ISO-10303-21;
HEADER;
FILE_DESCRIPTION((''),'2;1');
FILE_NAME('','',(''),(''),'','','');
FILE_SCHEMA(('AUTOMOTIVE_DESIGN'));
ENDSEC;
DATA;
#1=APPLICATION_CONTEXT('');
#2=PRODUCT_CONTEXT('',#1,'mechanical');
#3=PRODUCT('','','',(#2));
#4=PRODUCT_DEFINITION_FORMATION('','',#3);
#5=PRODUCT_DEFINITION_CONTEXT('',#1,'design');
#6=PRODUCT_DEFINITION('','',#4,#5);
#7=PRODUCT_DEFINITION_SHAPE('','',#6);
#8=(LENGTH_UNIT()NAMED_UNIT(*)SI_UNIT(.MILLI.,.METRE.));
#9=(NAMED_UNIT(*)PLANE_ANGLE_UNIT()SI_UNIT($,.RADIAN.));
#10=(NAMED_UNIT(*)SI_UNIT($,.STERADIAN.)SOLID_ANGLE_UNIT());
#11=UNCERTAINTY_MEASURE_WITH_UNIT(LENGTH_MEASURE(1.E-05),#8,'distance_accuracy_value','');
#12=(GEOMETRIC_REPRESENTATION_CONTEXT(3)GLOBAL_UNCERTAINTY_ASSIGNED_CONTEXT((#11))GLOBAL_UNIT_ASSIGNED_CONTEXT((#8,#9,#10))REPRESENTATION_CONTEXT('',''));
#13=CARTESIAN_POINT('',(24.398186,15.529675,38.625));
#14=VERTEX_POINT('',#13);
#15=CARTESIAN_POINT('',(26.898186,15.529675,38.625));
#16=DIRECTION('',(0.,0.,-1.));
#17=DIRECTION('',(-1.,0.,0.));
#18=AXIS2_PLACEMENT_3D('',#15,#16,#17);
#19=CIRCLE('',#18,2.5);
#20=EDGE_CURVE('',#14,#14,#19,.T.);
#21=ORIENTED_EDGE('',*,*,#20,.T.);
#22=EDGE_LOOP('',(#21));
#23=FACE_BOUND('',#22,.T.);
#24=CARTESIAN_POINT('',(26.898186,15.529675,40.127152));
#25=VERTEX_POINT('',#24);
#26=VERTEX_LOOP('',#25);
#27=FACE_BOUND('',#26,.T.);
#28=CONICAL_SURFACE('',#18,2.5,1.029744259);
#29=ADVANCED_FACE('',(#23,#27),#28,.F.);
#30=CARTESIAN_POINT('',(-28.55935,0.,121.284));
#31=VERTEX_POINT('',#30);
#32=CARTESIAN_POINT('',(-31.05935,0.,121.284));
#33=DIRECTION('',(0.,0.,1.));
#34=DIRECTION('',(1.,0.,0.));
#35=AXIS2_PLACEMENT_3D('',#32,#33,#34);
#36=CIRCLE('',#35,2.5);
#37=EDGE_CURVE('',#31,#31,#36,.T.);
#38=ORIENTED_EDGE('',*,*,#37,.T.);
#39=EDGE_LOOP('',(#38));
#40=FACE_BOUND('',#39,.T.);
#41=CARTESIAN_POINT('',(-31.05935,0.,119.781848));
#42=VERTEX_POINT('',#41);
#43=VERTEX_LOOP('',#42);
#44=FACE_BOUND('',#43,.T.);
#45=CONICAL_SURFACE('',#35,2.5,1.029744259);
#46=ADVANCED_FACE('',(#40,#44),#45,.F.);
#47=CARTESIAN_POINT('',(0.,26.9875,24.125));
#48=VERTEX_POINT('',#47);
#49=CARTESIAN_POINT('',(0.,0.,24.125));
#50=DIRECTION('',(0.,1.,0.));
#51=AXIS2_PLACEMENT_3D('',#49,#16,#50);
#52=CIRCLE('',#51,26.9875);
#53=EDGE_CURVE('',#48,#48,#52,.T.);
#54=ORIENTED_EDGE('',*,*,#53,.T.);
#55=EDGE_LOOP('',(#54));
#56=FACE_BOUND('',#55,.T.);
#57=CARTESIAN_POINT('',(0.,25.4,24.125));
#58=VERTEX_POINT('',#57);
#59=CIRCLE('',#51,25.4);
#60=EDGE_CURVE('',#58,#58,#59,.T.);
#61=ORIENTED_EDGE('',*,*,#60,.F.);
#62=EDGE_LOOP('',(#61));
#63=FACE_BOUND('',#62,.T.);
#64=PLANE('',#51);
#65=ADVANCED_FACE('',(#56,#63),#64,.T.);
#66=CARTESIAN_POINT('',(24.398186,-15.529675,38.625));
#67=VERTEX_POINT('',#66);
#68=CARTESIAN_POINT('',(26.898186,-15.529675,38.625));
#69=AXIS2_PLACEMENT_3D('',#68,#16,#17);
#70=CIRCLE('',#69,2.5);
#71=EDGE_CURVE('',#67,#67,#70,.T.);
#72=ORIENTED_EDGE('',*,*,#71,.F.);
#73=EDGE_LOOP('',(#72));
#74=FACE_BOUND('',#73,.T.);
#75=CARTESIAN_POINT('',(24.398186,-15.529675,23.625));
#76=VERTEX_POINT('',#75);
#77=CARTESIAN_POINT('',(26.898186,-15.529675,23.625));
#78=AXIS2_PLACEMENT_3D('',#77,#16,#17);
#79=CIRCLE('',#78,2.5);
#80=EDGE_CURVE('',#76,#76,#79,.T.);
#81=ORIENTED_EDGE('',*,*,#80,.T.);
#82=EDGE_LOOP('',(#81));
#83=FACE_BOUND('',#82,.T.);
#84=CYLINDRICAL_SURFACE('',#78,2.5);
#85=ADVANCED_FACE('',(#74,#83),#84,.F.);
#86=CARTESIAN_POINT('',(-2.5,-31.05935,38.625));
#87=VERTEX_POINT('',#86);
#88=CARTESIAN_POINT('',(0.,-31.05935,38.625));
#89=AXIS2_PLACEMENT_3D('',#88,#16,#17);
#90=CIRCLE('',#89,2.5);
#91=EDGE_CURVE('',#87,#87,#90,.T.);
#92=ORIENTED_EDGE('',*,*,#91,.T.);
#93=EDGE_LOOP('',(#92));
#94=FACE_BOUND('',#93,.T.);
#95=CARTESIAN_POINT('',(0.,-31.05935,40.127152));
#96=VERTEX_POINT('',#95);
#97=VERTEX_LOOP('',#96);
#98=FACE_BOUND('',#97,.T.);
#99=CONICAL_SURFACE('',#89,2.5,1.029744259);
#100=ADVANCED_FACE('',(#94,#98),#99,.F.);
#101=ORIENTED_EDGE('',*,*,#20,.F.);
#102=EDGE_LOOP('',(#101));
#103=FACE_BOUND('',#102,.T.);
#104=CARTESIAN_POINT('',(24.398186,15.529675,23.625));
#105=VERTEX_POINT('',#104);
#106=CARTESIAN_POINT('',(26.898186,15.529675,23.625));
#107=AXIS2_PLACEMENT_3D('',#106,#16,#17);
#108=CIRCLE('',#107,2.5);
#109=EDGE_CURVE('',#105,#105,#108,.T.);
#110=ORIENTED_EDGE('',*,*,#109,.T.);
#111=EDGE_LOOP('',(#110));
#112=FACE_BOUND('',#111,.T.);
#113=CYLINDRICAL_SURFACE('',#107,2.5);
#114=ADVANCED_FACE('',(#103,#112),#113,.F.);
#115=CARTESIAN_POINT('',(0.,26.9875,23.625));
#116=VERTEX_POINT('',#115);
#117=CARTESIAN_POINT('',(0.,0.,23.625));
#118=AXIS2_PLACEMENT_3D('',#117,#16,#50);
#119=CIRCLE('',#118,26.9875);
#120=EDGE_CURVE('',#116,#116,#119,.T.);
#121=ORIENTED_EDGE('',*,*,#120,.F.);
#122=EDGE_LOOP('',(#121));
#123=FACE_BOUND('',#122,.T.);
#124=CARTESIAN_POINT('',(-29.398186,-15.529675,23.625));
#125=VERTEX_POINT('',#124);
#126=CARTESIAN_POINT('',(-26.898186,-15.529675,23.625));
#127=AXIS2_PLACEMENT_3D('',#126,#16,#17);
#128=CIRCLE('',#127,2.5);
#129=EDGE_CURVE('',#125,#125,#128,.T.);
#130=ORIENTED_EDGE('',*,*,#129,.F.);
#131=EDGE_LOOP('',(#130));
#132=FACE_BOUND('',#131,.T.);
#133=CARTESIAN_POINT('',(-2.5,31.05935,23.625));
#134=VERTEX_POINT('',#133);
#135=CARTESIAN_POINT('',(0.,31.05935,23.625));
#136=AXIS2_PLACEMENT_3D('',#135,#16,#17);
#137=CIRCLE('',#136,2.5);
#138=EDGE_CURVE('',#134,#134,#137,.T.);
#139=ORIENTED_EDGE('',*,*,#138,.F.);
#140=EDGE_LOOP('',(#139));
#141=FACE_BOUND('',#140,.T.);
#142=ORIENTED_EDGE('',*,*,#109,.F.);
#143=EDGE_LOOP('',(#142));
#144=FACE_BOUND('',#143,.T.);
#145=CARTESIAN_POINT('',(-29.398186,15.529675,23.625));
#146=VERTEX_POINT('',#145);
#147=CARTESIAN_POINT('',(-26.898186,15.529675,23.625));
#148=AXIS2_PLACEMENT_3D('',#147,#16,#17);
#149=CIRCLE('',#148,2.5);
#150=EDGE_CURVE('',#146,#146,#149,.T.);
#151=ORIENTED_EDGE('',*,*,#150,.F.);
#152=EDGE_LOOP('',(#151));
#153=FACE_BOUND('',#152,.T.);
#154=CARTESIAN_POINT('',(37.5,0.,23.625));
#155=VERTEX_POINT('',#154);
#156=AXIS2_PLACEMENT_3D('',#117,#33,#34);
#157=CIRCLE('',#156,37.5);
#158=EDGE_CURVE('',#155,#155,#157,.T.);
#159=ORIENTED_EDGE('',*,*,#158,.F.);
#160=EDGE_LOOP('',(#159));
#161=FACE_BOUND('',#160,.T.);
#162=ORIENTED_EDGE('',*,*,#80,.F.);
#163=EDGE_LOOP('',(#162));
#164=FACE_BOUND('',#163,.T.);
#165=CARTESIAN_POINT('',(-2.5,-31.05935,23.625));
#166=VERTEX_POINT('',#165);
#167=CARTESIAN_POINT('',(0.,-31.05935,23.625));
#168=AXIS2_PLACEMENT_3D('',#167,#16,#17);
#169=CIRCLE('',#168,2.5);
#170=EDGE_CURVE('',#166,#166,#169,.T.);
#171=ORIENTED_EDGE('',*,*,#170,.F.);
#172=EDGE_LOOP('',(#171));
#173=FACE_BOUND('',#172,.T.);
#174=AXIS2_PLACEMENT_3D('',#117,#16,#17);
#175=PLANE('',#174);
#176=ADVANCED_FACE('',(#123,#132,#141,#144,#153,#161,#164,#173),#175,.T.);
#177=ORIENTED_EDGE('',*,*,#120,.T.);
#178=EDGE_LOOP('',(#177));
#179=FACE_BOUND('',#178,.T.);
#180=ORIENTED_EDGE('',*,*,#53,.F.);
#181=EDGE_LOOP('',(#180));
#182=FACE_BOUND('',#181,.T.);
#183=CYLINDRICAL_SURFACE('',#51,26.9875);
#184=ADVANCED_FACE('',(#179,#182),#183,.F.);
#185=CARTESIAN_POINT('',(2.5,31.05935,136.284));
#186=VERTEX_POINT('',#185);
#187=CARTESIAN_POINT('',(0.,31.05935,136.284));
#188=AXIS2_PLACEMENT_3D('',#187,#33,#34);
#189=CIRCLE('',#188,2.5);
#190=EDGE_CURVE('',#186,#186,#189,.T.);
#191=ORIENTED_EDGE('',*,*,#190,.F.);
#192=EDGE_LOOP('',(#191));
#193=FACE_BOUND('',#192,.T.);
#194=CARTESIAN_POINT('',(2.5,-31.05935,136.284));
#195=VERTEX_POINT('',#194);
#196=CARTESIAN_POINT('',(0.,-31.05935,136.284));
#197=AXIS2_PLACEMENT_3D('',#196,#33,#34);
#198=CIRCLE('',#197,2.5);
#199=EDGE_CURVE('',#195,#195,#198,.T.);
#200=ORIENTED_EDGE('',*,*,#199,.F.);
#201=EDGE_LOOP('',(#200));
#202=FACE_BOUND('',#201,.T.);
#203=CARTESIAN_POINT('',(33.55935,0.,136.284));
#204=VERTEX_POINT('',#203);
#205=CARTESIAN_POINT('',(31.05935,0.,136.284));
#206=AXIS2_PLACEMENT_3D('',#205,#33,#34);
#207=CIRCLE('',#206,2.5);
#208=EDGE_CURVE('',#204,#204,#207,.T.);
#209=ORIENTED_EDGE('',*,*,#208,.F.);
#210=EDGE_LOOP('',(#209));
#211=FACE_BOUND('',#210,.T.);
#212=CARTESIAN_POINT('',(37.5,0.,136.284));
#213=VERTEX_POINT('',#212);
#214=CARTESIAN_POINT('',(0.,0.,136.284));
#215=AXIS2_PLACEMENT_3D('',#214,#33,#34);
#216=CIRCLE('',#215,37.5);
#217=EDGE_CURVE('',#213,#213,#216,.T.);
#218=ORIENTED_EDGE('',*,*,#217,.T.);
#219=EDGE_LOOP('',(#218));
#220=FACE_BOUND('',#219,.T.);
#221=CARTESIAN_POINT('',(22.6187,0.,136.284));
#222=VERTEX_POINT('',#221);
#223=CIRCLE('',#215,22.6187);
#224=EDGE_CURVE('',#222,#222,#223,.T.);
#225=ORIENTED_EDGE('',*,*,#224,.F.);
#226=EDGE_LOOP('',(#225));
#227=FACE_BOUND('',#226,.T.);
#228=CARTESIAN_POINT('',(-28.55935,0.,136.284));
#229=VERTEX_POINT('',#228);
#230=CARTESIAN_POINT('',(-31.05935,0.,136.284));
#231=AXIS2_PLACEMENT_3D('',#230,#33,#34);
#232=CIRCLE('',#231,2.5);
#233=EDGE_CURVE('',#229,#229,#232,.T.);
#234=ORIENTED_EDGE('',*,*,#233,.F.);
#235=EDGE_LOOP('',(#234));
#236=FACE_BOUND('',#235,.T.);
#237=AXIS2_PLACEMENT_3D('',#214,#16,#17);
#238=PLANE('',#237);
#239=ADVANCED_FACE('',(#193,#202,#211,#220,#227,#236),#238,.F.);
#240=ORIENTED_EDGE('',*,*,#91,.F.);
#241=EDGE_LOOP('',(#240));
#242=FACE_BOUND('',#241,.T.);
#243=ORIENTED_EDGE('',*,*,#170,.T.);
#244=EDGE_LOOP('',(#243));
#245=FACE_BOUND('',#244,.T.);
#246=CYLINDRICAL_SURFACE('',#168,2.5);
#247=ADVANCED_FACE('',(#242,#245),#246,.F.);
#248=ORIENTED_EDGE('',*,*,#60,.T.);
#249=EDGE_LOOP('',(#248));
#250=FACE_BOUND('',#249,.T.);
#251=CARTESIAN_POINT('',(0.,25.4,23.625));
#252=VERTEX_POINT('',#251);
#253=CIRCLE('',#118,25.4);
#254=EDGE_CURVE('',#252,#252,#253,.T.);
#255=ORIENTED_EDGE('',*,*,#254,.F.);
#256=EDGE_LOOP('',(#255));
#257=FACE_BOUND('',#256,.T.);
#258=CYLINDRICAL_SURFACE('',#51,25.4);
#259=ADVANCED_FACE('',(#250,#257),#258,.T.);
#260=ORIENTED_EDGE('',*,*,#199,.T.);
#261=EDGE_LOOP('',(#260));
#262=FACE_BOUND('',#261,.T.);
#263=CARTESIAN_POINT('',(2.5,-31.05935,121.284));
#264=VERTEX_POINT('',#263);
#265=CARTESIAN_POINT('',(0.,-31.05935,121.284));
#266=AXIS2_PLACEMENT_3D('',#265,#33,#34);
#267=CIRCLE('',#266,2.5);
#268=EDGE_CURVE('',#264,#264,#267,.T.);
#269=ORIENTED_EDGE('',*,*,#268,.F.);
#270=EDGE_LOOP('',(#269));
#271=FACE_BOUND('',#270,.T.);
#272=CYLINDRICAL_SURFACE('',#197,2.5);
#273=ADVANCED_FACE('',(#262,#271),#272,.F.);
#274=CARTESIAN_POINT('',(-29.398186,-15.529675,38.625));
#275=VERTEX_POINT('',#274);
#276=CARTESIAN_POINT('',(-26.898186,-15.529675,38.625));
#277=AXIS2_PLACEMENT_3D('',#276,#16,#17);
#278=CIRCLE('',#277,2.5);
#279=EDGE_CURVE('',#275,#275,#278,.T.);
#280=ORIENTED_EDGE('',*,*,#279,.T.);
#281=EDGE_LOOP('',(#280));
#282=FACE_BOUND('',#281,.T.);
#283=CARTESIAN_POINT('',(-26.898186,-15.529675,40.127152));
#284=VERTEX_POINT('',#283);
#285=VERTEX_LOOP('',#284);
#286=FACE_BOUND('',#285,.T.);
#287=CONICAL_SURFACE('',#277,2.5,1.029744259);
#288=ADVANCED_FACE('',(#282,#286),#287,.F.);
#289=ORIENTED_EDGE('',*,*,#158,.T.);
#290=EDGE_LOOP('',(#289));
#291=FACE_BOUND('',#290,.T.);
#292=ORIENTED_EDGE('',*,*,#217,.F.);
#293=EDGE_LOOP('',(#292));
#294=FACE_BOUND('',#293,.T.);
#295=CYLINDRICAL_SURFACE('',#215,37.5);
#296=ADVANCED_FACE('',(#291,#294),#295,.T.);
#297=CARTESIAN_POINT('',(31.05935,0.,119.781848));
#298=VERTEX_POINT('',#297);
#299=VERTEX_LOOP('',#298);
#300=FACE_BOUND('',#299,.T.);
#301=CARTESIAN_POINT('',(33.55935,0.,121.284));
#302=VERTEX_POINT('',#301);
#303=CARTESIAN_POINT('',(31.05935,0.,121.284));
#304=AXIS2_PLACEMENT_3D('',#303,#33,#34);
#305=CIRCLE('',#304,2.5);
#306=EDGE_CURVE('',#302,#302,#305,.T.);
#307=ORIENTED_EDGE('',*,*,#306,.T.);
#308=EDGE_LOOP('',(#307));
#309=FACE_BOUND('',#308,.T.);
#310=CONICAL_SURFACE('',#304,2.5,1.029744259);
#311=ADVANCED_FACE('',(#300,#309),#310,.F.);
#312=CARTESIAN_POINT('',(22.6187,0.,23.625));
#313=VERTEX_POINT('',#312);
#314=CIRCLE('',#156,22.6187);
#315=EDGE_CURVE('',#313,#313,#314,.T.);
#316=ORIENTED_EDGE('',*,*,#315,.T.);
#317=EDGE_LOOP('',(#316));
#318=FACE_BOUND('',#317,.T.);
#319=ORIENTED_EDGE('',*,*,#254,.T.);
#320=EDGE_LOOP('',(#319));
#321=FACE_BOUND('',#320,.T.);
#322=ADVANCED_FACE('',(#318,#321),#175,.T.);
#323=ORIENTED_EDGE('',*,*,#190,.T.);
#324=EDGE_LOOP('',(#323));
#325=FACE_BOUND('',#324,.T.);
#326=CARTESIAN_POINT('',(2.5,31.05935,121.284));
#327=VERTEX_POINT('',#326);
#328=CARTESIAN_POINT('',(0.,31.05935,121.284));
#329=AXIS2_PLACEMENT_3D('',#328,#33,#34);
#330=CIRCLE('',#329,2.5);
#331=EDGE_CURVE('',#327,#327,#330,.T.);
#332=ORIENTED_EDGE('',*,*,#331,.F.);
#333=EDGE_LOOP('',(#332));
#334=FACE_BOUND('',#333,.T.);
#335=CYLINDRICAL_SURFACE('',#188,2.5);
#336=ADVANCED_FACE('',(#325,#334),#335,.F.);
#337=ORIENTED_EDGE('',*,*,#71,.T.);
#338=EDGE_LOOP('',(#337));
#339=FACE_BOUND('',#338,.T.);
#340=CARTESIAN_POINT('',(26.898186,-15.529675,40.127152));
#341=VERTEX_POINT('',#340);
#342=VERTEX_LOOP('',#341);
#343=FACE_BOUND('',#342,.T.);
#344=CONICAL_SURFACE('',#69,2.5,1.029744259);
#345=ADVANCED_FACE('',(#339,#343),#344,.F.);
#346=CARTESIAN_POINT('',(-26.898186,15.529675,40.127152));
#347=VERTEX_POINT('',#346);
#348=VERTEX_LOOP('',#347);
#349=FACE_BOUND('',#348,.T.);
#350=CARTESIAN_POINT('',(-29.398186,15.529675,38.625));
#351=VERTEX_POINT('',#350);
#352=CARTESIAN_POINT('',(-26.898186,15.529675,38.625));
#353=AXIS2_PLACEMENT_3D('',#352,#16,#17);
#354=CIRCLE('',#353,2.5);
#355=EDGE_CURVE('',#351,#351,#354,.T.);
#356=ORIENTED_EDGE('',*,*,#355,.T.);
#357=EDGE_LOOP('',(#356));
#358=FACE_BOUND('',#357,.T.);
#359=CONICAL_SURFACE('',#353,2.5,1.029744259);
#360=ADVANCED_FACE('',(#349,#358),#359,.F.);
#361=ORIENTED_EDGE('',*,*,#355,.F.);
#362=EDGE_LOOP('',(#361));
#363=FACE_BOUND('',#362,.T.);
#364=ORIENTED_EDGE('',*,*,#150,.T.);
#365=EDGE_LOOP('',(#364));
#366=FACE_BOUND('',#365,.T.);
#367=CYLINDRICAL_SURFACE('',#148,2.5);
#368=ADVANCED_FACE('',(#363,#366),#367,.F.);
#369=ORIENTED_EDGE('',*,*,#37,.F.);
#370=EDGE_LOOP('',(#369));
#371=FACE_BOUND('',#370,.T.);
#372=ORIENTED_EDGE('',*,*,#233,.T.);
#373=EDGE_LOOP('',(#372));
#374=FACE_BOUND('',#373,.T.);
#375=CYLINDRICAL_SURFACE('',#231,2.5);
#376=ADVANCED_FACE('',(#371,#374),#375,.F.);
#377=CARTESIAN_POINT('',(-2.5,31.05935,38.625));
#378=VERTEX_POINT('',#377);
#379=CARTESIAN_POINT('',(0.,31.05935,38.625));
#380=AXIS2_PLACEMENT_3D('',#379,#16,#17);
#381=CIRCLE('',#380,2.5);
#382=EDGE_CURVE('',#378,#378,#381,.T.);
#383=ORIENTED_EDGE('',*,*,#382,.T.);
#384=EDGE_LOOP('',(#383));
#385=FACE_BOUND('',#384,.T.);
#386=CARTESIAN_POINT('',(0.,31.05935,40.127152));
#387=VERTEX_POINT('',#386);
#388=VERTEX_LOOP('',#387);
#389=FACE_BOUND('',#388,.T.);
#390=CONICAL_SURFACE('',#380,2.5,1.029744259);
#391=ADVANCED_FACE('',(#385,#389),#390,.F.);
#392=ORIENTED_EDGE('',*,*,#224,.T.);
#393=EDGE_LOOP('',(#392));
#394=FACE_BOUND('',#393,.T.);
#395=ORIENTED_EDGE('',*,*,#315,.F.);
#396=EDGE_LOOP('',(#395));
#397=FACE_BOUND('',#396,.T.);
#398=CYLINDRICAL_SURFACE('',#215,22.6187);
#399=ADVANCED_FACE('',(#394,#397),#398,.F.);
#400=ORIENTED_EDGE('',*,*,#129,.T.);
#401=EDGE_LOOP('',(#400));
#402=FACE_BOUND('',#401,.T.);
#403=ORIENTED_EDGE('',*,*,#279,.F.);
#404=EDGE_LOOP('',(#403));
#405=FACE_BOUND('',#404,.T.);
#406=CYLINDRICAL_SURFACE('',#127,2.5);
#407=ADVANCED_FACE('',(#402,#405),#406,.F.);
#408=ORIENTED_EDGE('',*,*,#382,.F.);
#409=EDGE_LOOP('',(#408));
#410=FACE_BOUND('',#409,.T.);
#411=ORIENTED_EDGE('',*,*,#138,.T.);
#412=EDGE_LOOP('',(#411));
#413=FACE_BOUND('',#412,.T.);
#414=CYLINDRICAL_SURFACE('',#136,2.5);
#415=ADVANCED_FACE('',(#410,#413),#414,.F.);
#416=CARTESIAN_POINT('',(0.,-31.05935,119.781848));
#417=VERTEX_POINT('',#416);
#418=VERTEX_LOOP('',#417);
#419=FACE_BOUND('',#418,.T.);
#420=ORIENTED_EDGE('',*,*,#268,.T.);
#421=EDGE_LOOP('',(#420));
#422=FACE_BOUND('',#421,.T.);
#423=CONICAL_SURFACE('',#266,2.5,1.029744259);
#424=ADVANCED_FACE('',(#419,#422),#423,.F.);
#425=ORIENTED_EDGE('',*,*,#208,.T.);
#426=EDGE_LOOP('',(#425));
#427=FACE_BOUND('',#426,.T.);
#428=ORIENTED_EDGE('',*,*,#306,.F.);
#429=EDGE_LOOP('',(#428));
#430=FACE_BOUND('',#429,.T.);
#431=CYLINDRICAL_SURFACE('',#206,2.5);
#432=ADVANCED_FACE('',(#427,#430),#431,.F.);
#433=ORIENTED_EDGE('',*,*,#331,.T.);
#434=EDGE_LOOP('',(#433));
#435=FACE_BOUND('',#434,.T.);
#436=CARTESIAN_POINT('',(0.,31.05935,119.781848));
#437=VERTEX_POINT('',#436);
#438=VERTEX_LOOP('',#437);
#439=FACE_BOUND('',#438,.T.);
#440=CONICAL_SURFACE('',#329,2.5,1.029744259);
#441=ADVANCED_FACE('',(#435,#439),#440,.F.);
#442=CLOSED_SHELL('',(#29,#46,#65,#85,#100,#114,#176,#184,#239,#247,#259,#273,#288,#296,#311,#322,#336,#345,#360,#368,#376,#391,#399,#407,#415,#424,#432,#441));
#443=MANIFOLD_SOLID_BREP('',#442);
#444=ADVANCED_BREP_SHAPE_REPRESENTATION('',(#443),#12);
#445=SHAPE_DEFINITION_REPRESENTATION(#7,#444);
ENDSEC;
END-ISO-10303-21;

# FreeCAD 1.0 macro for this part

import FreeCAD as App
import Part
import Sketcher

V = App.Vector
Q = App.Units.Quantity

doc = App.newDocument("Part")
body = doc.addObject("PartDesign::Body", "Body")

# Sketch on YZ plane
sketch1 = body.newObject("Sketcher::SketchObject", "Sketch")
sketch1.AttachmentSupport = (doc.getObject("YZ_Plane"), [""])
sketch1.MapMode = "FlatFace"
sketch1.addGeometry(Part.LineSegment(V(38, 136, 0), V(23, 136, 0)), False)
sketch1.addGeometry(Part.LineSegment(V(23, 136, 0), V(23, 24, 0)), False)
sketch1.addGeometry(Part.LineSegment(V(23, 24, 0), V(38, 24, 0)), False)
sketch1.addGeometry(Part.LineSegment(V(38, 24, 0), V(38, 136, 0)), False)
sketch1.addConstraint(Sketcher.Constraint("Coincident", 0, 2, 1, 1))
sketch1.addConstraint(Sketcher.Constraint("Coincident", 1, 2, 2, 1))
sketch1.addConstraint(Sketcher.Constraint("Coincident", 2, 2, 3, 1))
sketch1.addConstraint(Sketcher.Constraint("Coincident", 3, 2, 0, 1))
sketch1.addConstraint(Sketcher.Constraint("Horizontal", 0))
sketch1.addConstraint(Sketcher.Constraint("Vertical", 1))
sketch1.addConstraint(Sketcher.Constraint("Horizontal", 2))
sketch1.addConstraint(Sketcher.Constraint("Vertical", 3))
sketch1.addConstraint(Sketcher.Constraint("DistanceX", -1, 1, 2, 2, 37.5))
sketch1.addConstraint(Sketcher.Constraint("DistanceY", 1, 2, 1, 1, 112.659))
sketch1.addConstraint(Sketcher.Constraint("DistanceX", 0, 2, 0, 1, 14.8813))
sketch1.addConstraint(Sketcher.Constraint("DistanceY", -1, 1, 0, 2, 136.284))
revolution = body.newObject("PartDesign::Revolution", "Revolution")
revolution.Profile = sketch1
revolution.ReferenceAxis = (sketch1, ["V_Axis"])
revolution.Angle = 360

# Sketch on YZ plane
sketch2 = body.newObject("Sketcher::SketchObject", "Sketch001")
sketch2.AttachmentSupport = (doc.getObject("YZ_Plane"), [""])
sketch2.MapMode = "FlatFace"
sketch2.addGeometry(Part.LineSegment(V(31.1, 40.1, 0), V(31.1, 23.6, 0)), False)
sketch2.addGeometry(Part.LineSegment(V(31.1, 23.6, 0), V(33.6, 23.6, 0)), False)
sketch2.addGeometry(Part.LineSegment(V(33.6, 23.6, 0), V(33.6, 38.6, 0)), False)
sketch2.addGeometry(Part.LineSegment(V(33.6, 38.6, 0), V(31.1, 40.1, 0)), False)
sketch2.addGeometry(Part.LineSegment(V(31.1, 23.6, 0), V(31.1, 40.1, 0)), True)  # axis
sketch2.addConstraint(Sketcher.Constraint("Coincident", 0, 2, 1, 1))
sketch2.addConstraint(Sketcher.Constraint("Coincident", 1, 2, 2, 1))
sketch2.addConstraint(Sketcher.Constraint("Coincident", 2, 2, 3, 1))
sketch2.addConstraint(Sketcher.Constraint("Coincident", 3, 2, 0, 1))
sketch2.addConstraint(Sketcher.Constraint("Vertical", 0))
sketch2.addConstraint(Sketcher.Constraint("Horizontal", 1))
sketch2.addConstraint(Sketcher.Constraint("Vertical", 2))
sketch2.addConstraint(Sketcher.Constraint("Vertical", 4))
sketch2.addConstraint(Sketcher.Constraint("Coincident", 4, 1, 0, 2))
sketch2.addConstraint(Sketcher.Constraint("Equal", 0, 4))
sketch2.addConstraint(Sketcher.Constraint("DistanceY", 2, 1, 2, 2, 15.0))
sketch2.addConstraint(Sketcher.Constraint("Angle", 3, Q("149 deg")))
sketch2.addConstraint(Sketcher.Constraint("DistanceX", 1, 1, 1, 2, 2.5))
sketch2.addConstraint(Sketcher.Constraint("DistanceY", -1, 1, 0, 2, 23.625))
sketch2.addConstraint(Sketcher.Constraint("DistanceX", -1, 1, 0, 2, 31.05935))
groove = body.newObject("PartDesign::Groove", "Groove")
groove.Profile = sketch2
groove.ReferenceAxis = (sketch2, ["Axis0"])
groove.Angle = 360
doc.recompute()

polarpattern = body.newObject("PartDesign::PolarPattern", "PolarPattern")
polarpattern.Originals = [groove]
polarpattern.Axis = (doc.getObject("Z_Axis"), [""])
polarpattern.Angle = 360
polarpattern.Occurrences = 6
body.Tip = polarpattern

# Sketch on YZ plane
sketch3 = body.newObject("Sketcher::SketchObject", "Sketch002")
sketch3.AttachmentSupport = (doc.getObject("YZ_Plane"), [""])
sketch3.MapMode = "FlatFace"
sketch3.addGeometry(Part.LineSegment(V(31.1, 119.8, 0), V(31.1, 136.3, 0)), False)
sketch3.addGeometry(Part.LineSegment(V(31.1, 136.3, 0), V(28.6, 136.3, 0)), False)
sketch3.addGeometry(Part.LineSegment(V(28.6, 136.3, 0), V(28.6, 121.3, 0)), False)
sketch3.addGeometry(Part.LineSegment(V(28.6, 121.3, 0), V(31.1, 119.8, 0)), False)
sketch3.addGeometry(Part.LineSegment(V(31.1, 136.3, 0), V(31.1, 119.8, 0)), True)  # axis
sketch3.addConstraint(Sketcher.Constraint("Coincident", 0, 2, 1, 1))
sketch3.addConstraint(Sketcher.Constraint("Coincident", 1, 2, 2, 1))
sketch3.addConstraint(Sketcher.Constraint("Coincident", 2, 2, 3, 1))
sketch3.addConstraint(Sketcher.Constraint("Coincident", 3, 2, 0, 1))
sketch3.addConstraint(Sketcher.Constraint("Vertical", 0))
sketch3.addConstraint(Sketcher.Constraint("Horizontal", 1))
sketch3.addConstraint(Sketcher.Constraint("Vertical", 2))
sketch3.addConstraint(Sketcher.Constraint("Vertical", 4))
sketch3.addConstraint(Sketcher.Constraint("Coincident", 4, 1, 0, 2))
sketch3.addConstraint(Sketcher.Constraint("Equal", 0, 4))
sketch3.addConstraint(Sketcher.Constraint("DistanceY", 2, 2, 2, 1, 15.0))
sketch3.addConstraint(Sketcher.Constraint("Angle", 3, Q("-31 deg")))
sketch3.addConstraint(Sketcher.Constraint("DistanceX", 1, 2, 1, 1, 2.5))
sketch3.addConstraint(Sketcher.Constraint("DistanceY", -1, 1, 0, 2, 136.284))
sketch3.addConstraint(Sketcher.Constraint("DistanceX", -1, 1, 0, 2, 31.05935))
groove2 = body.newObject("PartDesign::Groove", "Groove001")
groove2.Profile = sketch3
groove2.ReferenceAxis = (sketch3, ["Axis0"])
groove2.Angle = 360
doc.recompute()

polarpattern2 = body.newObject("PartDesign::PolarPattern", "PolarPattern001")
polarpattern2.Originals = [groove2]
polarpattern2.Axis = (doc.getObject("Z_Axis"), [""])
polarpattern2.Angle = 360
polarpattern2.Occurrences = 4
body.Tip = polarpattern2

# Sketch on XY plane
sketch4 = body.newObject("Sketcher::SketchObject", "Sketch003")
sketch4.AttachmentSupport = (doc.getObject("XY_Plane"), [""])
sketch4.MapMode = "FlatFace"
sketch4.AttachmentOffset = App.Placement(V(0, 0, 23.625), App.Rotation())
sketch4.addGeometry(Part.Circle(V(0, 0, 0), V(0, 0, 1), 27), False)
sketch4.addGeometry(Part.Circle(V(0, 0, 0), V(0, 0, 1), 25), False)
sketch4.addConstraint(Sketcher.Constraint("Coincident", 0, 3, -1, 1))
sketch4.addConstraint(Sketcher.Constraint("Coincident", 1, 3, -1, 1))
sketch4.addConstraint(Sketcher.Constraint("Diameter", 1, 50.8))
sketch4.addConstraint(Sketcher.Constraint("Diameter", 0, 53.975))
pocket1 = body.newObject("PartDesign::Pocket", "Pocket")
pocket1.Profile = sketch4
pocket1.Length = 0.5
pocket1.Reversed = True

doc.recompute()
